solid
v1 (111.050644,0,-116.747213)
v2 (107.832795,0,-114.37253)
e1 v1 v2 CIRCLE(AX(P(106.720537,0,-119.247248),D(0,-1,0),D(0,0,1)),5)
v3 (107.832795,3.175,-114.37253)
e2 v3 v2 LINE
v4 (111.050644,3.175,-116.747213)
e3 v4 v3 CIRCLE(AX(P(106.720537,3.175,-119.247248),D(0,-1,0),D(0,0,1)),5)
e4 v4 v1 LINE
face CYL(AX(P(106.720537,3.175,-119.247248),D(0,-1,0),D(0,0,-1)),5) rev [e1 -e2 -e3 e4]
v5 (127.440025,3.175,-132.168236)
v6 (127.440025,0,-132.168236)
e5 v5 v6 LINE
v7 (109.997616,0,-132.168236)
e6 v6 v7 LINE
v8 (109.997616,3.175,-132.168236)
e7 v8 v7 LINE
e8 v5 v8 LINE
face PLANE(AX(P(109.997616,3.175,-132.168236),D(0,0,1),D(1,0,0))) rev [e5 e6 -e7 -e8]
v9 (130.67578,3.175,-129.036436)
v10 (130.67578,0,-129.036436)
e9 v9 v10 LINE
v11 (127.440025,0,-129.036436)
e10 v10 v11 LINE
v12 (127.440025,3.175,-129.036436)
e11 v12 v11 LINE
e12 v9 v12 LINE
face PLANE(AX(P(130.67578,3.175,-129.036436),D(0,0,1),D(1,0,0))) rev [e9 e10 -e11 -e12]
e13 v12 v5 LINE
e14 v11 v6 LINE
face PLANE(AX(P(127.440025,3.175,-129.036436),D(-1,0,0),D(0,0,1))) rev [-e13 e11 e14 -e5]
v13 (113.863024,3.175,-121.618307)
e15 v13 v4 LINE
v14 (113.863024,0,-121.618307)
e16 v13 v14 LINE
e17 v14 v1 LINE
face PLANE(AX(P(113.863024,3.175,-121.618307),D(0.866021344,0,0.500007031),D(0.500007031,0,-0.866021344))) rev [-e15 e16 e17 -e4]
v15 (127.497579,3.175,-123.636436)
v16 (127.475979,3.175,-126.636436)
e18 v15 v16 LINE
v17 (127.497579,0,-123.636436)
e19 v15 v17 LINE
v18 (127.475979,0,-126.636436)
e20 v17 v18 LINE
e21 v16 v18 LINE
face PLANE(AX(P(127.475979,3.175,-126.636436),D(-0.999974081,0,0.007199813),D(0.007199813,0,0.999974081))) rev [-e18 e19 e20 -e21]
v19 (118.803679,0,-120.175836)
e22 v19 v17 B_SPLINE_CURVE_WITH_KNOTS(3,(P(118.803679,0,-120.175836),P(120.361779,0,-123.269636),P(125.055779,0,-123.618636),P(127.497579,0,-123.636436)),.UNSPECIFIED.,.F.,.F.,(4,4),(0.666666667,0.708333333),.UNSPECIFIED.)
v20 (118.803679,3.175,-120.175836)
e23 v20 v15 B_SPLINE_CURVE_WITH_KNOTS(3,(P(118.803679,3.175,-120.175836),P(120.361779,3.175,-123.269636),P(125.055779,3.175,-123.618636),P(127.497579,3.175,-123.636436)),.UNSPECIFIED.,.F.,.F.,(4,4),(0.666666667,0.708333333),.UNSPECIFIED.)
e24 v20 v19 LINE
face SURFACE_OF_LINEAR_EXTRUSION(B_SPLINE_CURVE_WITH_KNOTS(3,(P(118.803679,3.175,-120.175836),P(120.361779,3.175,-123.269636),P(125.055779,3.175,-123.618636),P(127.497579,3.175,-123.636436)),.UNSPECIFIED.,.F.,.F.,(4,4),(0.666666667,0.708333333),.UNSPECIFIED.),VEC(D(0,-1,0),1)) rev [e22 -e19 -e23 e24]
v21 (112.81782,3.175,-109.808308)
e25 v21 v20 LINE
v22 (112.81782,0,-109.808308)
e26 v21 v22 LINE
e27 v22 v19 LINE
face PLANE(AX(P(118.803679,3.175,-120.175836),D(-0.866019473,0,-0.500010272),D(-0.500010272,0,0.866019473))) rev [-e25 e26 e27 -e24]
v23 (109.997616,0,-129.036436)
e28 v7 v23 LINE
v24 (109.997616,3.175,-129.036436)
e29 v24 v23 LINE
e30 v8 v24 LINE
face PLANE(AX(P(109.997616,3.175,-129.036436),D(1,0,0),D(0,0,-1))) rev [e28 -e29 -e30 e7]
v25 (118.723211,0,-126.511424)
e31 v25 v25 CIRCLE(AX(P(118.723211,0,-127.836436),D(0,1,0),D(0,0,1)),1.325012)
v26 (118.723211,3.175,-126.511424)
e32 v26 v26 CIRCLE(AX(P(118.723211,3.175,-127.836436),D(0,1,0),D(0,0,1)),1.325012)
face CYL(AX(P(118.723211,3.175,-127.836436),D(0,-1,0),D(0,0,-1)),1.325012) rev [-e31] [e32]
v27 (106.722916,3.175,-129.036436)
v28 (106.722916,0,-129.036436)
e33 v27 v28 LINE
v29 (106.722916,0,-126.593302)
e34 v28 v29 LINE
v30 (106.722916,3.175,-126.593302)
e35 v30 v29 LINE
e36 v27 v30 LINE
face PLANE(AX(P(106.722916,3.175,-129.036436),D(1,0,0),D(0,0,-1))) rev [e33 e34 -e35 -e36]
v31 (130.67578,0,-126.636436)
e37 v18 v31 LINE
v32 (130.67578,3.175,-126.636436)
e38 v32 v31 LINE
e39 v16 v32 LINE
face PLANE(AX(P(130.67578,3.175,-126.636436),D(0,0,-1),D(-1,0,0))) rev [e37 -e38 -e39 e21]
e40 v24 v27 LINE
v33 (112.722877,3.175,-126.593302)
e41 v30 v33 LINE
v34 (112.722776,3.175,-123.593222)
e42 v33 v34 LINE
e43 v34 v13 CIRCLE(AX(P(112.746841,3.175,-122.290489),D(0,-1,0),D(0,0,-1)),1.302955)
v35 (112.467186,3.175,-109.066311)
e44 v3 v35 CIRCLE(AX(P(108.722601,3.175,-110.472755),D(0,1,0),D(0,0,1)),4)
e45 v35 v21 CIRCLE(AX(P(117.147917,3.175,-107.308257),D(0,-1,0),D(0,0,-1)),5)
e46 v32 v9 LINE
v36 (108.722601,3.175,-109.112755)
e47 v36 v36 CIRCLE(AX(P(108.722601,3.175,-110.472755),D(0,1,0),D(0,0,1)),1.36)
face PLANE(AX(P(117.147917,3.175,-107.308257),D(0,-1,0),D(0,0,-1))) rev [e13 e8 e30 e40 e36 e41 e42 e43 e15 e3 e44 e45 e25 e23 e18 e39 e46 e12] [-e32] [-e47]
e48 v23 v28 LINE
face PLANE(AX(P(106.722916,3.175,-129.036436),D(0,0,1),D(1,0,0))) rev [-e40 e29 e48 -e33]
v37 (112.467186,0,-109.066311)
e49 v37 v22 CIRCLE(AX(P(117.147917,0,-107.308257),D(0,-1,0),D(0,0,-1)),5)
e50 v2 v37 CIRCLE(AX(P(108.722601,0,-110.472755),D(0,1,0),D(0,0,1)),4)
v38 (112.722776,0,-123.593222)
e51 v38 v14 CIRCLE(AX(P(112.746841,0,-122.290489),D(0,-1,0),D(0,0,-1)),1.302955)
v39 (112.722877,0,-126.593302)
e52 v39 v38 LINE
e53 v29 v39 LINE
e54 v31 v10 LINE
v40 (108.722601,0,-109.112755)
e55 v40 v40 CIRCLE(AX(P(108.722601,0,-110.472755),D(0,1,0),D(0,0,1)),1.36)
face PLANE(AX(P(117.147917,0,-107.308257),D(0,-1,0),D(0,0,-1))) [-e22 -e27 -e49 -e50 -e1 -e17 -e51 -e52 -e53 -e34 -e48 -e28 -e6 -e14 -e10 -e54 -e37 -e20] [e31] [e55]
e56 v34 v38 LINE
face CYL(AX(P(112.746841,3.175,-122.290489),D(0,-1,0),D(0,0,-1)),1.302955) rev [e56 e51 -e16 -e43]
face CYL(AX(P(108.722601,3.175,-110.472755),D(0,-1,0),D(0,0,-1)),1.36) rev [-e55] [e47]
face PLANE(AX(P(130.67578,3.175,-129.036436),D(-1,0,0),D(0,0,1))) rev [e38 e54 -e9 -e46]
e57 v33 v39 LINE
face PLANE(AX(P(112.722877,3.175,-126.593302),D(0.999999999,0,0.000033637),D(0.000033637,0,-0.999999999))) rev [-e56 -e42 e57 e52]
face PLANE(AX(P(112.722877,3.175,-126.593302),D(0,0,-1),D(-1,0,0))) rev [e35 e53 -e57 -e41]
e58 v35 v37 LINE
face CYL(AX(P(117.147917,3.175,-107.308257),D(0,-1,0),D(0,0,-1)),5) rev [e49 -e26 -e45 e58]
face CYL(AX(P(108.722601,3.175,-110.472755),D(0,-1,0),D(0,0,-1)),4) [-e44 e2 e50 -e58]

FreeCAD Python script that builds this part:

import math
import FreeCAD as App
import Part
import Sketcher

doc = App.newDocument("Part")
body = doc.addObject("PartDesign::Body", "Body")

sketch1 = body.newObject("Sketcher::SketchObject", "Sketch")
sketch1.AttachmentSupport = (doc.getObject("XZ_Plane"), [""])
sketch1.MapMode = "FlatFace"
sketch1.addGeometry([
    Part.LineSegment(App.Vector(112.722877, -126.593302, 0), App.Vector(112.722776, -123.593222, 0)),
    Part.ArcOfCircle(Part.Circle(App.Vector(112.746841, -122.290489, 0), App.Vector(0, 0, 1), 1.302955), math.radians(-91.05829), math.radians(31.056984)),
    Part.LineSegment(App.Vector(113.863024, -121.618307, 0), App.Vector(111.050644, -116.747213, 0)),
    Part.ArcOfCircle(Part.Circle(App.Vector(106.720537, -119.247248, 0), App.Vector(0, 0, 1), 5), math.radians(30.000465), math.radians(77.146938)),
    Part.ArcOfCircle(Part.Circle(App.Vector(108.722601, -110.472755, 0), App.Vector(0, 0, 1), 4), math.radians(20.585873), math.radians(257.146938)),
    Part.ArcOfCircle(Part.Circle(App.Vector(117.147917, -107.308257, 0), App.Vector(0, 0, 1), 5), math.radians(-159.414127), math.radians(-149.99932)),
    Part.LineSegment(App.Vector(112.81782, -109.808308, 0), App.Vector(118.803679, -120.175836, 0)),
    Part.BSplineCurve([App.Vector(118.803679, -120.175836, 0), App.Vector(120.361779, -123.269636, 0), App.Vector(125.055779, -123.618636, 0), App.Vector(127.497579, -123.636436, 0)], [4, 4], [0.666666667, 0.708333333], False, 3, [1, 1, 1, 1], False),
    Part.LineSegment(App.Vector(127.497579, -123.636436, 0), App.Vector(127.475979, -126.636436, 0)),
    Part.LineSegment(App.Vector(127.475979, -126.636436, 0), App.Vector(130.67578, -126.636436, 0)),
    Part.LineSegment(App.Vector(130.67578, -126.636436, 0), App.Vector(130.67578, -129.036436, 0)),
    Part.LineSegment(App.Vector(130.67578, -129.036436, 0), App.Vector(127.440025, -129.036436, 0)),
    Part.LineSegment(App.Vector(127.440025, -129.036436, 0), App.Vector(127.440025, -132.168236, 0)),
    Part.LineSegment(App.Vector(127.440025, -132.168236, 0), App.Vector(109.997616, -132.168236, 0)),
    Part.LineSegment(App.Vector(109.997616, -132.168236, 0), App.Vector(109.997616, -129.036436, 0)),
    Part.LineSegment(App.Vector(109.997616, -129.036436, 0), App.Vector(106.722916, -129.036436, 0)),
    Part.LineSegment(App.Vector(106.722916, -129.036436, 0), App.Vector(106.722916, -126.593302, 0)),
    Part.LineSegment(App.Vector(106.722916, -126.593302, 0), App.Vector(112.722877, -126.593302, 0)),
    Part.Circle(App.Vector(108.722601, -110.472755, 0), App.Vector(0, 0, 1), 1.36),
    Part.Circle(App.Vector(118.723211, -127.836436, 0), App.Vector(0, 0, 1), 1.325012),
], False)
sketch1.addConstraint([
    Sketcher.Constraint("Block", 7),
    Sketcher.Constraint("Coincident", 0, 2, 1, 1),
    Sketcher.Constraint("Coincident", 1, 2, 2, 1),
    Sketcher.Constraint("Tangent", 2, 2, 3, 1),
    Sketcher.Constraint("Tangent", 3, 2, 4, 2),
    Sketcher.Constraint("Tangent", 4, 1, 5, 1),
    Sketcher.Constraint("Tangent", 5, 2, 6, 1),
    Sketcher.Constraint("Coincident", 6, 2, 7, 1),
    Sketcher.Constraint("Coincident", 7, 2, 8, 1),
    Sketcher.Constraint("Coincident", 8, 2, 9, 1),
    Sketcher.Constraint("Coincident", 9, 2, 10, 1),
    Sketcher.Constraint("Coincident", 10, 2, 11, 1),
    Sketcher.Constraint("Coincident", 11, 2, 12, 1),
    Sketcher.Constraint("Coincident", 12, 2, 13, 1),
    Sketcher.Constraint("Coincident", 13, 2, 14, 1),
    Sketcher.Constraint("Coincident", 14, 2, 15, 1),
    Sketcher.Constraint("Coincident", 15, 2, 16, 1),
    Sketcher.Constraint("Coincident", 16, 2, 17, 1),
    Sketcher.Constraint("Coincident", 17, 2, 0, 1),
    Sketcher.Constraint("Horizontal", 9),
    Sketcher.Constraint("Vertical", 10),
    Sketcher.Constraint("Horizontal", 11),
    Sketcher.Constraint("Vertical", 12),
    Sketcher.Constraint("Horizontal", 13),
    Sketcher.Constraint("Vertical", 14),
    Sketcher.Constraint("Horizontal", 15),
    Sketcher.Constraint("Vertical", 16),
    Sketcher.Constraint("Horizontal", 17),
    Sketcher.Constraint("Coincident", 18, 3, 4, 3),
    Sketcher.Constraint("Equal", 3, 5),
    Sketcher.Constraint("Horizontal", 11, 2, 14, 2),
    Sketcher.Constraint("Radius", 3, 5.0),
    Sketcher.Constraint("Radius", 4, 4.0),
    Sketcher.Constraint("Diameter", 18, 2.72),
    Sketcher.Constraint("DistanceY", 10, 2, 10, 1, 2.4),
    Sketcher.Constraint("DistanceY", 19, 3, 8, 2, 1.2),
    Sketcher.Constraint("Diameter", 19, 2.650024),
    Sketcher.Constraint("DistanceX", 9, 1, 9, 2, 3.199801),
    Sketcher.Constraint("DistanceX", 15, 2, 15, 1, 3.2747),
    Sketcher.Constraint("DistanceY", 12, 2, 12, 1, 3.1318),
    Sketcher.Constraint("Radius", 1, 1.302955),
    Sketcher.Constraint("DistanceX", 13, 2, 13, 1, 17.442409),
    Sketcher.Constraint("DistanceX", 17, 1, 17, 2, 5.999961),
    Sketcher.Constraint("DistanceX", -1, 1, 4, 3, 108.722601),
    Sketcher.Constraint("DistanceY", 19, 3, 6, 2, 7.6606),
    Sketcher.Constraint("DistanceX", 6, 2, 8, 2, 8.6723),
    Sketcher.Constraint("DistanceX", 0, 2, 17, 2, 0.000101),
    Sketcher.Constraint("Distance", 0, 3.00008),
    Sketcher.Constraint("Distance", 2, 5.624681),
    Sketcher.Constraint("DistanceX", 11, 2, 11, 1, 3.235755),
    Sketcher.Constraint("DistanceY", 16, 1, 16, 2, 2.443134),
    Sketcher.Constraint("DistanceX", -1, 1, 1, 3, 112.746841),
    Sketcher.Constraint("DistanceY", 3, 3, -1, 1, 119.247248),
    Sketcher.Constraint("DistanceX", -1, 1, 19, 3, 118.723211),
    Sketcher.Constraint("DistanceY", 3, 2, -1, 1, 114.37253),
    Sketcher.Constraint("DistanceY", 4, 1, -1, 1, 109.066311),
])
pad1 = body.newObject("PartDesign::Pad", "Pad")
pad1.Profile = sketch1
pad1.Length = 3.175
pad1.Reversed = True

doc.recompute()
